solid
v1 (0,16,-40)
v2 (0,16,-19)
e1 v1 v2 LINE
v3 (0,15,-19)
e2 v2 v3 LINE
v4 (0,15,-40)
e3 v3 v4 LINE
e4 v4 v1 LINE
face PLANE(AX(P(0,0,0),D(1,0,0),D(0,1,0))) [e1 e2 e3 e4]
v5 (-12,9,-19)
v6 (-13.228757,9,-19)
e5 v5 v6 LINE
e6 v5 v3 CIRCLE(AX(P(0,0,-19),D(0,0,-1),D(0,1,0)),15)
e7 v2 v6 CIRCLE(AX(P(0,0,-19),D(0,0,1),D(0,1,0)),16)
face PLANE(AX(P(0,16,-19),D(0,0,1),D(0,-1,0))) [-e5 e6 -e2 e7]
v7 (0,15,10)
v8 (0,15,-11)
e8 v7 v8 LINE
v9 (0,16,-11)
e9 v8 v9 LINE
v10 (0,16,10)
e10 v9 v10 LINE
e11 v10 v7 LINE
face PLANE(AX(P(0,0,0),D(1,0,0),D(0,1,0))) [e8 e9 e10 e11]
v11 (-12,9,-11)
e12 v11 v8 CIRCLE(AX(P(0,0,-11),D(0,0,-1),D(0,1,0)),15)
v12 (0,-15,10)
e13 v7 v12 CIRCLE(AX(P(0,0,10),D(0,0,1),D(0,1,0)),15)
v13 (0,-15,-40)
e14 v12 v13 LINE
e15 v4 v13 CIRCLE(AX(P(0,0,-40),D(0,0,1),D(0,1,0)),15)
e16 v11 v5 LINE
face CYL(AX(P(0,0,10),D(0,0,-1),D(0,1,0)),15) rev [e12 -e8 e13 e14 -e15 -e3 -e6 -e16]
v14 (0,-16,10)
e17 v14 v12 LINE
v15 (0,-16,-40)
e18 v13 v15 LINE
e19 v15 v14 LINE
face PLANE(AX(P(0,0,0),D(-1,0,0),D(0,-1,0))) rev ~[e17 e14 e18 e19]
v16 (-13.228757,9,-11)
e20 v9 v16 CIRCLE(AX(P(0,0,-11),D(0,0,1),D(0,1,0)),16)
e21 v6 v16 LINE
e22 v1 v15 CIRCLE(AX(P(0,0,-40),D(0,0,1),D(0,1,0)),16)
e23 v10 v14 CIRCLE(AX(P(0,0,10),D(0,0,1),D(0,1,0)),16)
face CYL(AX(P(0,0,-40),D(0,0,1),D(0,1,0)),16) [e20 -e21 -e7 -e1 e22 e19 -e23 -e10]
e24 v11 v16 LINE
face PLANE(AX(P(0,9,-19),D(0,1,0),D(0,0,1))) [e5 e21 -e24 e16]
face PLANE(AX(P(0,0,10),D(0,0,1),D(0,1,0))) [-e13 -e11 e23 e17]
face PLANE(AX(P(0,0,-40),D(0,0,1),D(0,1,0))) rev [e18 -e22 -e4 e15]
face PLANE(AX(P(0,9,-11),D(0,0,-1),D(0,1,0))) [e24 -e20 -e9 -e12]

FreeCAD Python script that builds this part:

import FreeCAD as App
import Part
import Sketcher

V = App.Vector
Q = App.Units.Quantity


def add_polygon(sketch, points):
    """Adds a closed chain of lines whose ends are joined by coincident constraints."""
    first, n = sketch.GeometryCount, len(points)
    for a, b in zip(points, points[1:] + points[:1]):
        sketch.addGeometry(Part.LineSegment(App.Vector(*a, 0), App.Vector(*b, 0)), False)
    for i in range(n):
        sketch.addConstraint(Sketcher.Constraint("Coincident", first + i, 2, first + (i + 1) % n, 1))

doc = App.newDocument("Part")
body = doc.addObject("PartDesign::Body", "Body")

# Sketch on YZ plane
sketch1 = body.newObject("Sketcher::SketchObject", "Sketch")
sketch1.AttachmentSupport = (doc.getObject("YZ_Plane"), [""])
sketch1.MapMode = "FlatFace"
add_polygon(sketch1, [(15, 10), (15, -40), (16, -40), (16, 10)])  # lines 0-3
sketch1.addConstraint([
    Sketcher.Constraint("Vertical", 0),
    Sketcher.Constraint("Horizontal", 1),
    Sketcher.Constraint("Vertical", 2),
    Sketcher.Constraint("Horizontal", 3),
    Sketcher.Constraint("DistanceX", 1, 1, 1, 2, Q("1 mm")),
    Sketcher.Constraint("DistanceY", 0, 2, 0, 1, Q("50 mm")),
    Sketcher.Constraint("DistanceX", -1, 1, 0, 2, Q("15 mm")),
    Sketcher.Constraint("DistanceY", 0, 2, -1, 1, Q("40 mm")),
])
revolution = body.newObject("PartDesign::Revolution", "Revolution")
revolution.Profile = sketch1
revolution.ReferenceAxis = (sketch1, ["V_Axis"])
revolution.Angle = 180

# Sketch on YZ plane
sketch2 = body.newObject("Sketcher::SketchObject", "Sketch001")
sketch2.AttachmentSupport = (doc.getObject("YZ_Plane"), [""])
sketch2.MapMode = "FlatFace"
add_polygon(sketch2, [(9, -19), (16, -19), (16, -11), (9, -11)])  # lines 0-3
sketch2.addConstraint([
    Sketcher.Constraint("Horizontal", 0),
    Sketcher.Constraint("Vertical", 1),
    Sketcher.Constraint("Horizontal", 2),
    Sketcher.Constraint("Vertical", 3),
    Sketcher.Constraint("DistanceX", 0, 1, 0, 2, Q("7 mm")),
    Sketcher.Constraint("DistanceY", 1, 1, 1, 2, Q("8 mm")),
    Sketcher.Constraint("DistanceX", -1, 1, 0, 2, Q("16 mm")),
    Sketcher.Constraint("DistanceY", 0, 2, -1, 1, Q("19 mm")),
])
pocket1 = body.newObject("PartDesign::Pocket", "Pocket")
pocket1.Profile = sketch2
pocket1.Type = "ThroughAll"

doc.recompute()
